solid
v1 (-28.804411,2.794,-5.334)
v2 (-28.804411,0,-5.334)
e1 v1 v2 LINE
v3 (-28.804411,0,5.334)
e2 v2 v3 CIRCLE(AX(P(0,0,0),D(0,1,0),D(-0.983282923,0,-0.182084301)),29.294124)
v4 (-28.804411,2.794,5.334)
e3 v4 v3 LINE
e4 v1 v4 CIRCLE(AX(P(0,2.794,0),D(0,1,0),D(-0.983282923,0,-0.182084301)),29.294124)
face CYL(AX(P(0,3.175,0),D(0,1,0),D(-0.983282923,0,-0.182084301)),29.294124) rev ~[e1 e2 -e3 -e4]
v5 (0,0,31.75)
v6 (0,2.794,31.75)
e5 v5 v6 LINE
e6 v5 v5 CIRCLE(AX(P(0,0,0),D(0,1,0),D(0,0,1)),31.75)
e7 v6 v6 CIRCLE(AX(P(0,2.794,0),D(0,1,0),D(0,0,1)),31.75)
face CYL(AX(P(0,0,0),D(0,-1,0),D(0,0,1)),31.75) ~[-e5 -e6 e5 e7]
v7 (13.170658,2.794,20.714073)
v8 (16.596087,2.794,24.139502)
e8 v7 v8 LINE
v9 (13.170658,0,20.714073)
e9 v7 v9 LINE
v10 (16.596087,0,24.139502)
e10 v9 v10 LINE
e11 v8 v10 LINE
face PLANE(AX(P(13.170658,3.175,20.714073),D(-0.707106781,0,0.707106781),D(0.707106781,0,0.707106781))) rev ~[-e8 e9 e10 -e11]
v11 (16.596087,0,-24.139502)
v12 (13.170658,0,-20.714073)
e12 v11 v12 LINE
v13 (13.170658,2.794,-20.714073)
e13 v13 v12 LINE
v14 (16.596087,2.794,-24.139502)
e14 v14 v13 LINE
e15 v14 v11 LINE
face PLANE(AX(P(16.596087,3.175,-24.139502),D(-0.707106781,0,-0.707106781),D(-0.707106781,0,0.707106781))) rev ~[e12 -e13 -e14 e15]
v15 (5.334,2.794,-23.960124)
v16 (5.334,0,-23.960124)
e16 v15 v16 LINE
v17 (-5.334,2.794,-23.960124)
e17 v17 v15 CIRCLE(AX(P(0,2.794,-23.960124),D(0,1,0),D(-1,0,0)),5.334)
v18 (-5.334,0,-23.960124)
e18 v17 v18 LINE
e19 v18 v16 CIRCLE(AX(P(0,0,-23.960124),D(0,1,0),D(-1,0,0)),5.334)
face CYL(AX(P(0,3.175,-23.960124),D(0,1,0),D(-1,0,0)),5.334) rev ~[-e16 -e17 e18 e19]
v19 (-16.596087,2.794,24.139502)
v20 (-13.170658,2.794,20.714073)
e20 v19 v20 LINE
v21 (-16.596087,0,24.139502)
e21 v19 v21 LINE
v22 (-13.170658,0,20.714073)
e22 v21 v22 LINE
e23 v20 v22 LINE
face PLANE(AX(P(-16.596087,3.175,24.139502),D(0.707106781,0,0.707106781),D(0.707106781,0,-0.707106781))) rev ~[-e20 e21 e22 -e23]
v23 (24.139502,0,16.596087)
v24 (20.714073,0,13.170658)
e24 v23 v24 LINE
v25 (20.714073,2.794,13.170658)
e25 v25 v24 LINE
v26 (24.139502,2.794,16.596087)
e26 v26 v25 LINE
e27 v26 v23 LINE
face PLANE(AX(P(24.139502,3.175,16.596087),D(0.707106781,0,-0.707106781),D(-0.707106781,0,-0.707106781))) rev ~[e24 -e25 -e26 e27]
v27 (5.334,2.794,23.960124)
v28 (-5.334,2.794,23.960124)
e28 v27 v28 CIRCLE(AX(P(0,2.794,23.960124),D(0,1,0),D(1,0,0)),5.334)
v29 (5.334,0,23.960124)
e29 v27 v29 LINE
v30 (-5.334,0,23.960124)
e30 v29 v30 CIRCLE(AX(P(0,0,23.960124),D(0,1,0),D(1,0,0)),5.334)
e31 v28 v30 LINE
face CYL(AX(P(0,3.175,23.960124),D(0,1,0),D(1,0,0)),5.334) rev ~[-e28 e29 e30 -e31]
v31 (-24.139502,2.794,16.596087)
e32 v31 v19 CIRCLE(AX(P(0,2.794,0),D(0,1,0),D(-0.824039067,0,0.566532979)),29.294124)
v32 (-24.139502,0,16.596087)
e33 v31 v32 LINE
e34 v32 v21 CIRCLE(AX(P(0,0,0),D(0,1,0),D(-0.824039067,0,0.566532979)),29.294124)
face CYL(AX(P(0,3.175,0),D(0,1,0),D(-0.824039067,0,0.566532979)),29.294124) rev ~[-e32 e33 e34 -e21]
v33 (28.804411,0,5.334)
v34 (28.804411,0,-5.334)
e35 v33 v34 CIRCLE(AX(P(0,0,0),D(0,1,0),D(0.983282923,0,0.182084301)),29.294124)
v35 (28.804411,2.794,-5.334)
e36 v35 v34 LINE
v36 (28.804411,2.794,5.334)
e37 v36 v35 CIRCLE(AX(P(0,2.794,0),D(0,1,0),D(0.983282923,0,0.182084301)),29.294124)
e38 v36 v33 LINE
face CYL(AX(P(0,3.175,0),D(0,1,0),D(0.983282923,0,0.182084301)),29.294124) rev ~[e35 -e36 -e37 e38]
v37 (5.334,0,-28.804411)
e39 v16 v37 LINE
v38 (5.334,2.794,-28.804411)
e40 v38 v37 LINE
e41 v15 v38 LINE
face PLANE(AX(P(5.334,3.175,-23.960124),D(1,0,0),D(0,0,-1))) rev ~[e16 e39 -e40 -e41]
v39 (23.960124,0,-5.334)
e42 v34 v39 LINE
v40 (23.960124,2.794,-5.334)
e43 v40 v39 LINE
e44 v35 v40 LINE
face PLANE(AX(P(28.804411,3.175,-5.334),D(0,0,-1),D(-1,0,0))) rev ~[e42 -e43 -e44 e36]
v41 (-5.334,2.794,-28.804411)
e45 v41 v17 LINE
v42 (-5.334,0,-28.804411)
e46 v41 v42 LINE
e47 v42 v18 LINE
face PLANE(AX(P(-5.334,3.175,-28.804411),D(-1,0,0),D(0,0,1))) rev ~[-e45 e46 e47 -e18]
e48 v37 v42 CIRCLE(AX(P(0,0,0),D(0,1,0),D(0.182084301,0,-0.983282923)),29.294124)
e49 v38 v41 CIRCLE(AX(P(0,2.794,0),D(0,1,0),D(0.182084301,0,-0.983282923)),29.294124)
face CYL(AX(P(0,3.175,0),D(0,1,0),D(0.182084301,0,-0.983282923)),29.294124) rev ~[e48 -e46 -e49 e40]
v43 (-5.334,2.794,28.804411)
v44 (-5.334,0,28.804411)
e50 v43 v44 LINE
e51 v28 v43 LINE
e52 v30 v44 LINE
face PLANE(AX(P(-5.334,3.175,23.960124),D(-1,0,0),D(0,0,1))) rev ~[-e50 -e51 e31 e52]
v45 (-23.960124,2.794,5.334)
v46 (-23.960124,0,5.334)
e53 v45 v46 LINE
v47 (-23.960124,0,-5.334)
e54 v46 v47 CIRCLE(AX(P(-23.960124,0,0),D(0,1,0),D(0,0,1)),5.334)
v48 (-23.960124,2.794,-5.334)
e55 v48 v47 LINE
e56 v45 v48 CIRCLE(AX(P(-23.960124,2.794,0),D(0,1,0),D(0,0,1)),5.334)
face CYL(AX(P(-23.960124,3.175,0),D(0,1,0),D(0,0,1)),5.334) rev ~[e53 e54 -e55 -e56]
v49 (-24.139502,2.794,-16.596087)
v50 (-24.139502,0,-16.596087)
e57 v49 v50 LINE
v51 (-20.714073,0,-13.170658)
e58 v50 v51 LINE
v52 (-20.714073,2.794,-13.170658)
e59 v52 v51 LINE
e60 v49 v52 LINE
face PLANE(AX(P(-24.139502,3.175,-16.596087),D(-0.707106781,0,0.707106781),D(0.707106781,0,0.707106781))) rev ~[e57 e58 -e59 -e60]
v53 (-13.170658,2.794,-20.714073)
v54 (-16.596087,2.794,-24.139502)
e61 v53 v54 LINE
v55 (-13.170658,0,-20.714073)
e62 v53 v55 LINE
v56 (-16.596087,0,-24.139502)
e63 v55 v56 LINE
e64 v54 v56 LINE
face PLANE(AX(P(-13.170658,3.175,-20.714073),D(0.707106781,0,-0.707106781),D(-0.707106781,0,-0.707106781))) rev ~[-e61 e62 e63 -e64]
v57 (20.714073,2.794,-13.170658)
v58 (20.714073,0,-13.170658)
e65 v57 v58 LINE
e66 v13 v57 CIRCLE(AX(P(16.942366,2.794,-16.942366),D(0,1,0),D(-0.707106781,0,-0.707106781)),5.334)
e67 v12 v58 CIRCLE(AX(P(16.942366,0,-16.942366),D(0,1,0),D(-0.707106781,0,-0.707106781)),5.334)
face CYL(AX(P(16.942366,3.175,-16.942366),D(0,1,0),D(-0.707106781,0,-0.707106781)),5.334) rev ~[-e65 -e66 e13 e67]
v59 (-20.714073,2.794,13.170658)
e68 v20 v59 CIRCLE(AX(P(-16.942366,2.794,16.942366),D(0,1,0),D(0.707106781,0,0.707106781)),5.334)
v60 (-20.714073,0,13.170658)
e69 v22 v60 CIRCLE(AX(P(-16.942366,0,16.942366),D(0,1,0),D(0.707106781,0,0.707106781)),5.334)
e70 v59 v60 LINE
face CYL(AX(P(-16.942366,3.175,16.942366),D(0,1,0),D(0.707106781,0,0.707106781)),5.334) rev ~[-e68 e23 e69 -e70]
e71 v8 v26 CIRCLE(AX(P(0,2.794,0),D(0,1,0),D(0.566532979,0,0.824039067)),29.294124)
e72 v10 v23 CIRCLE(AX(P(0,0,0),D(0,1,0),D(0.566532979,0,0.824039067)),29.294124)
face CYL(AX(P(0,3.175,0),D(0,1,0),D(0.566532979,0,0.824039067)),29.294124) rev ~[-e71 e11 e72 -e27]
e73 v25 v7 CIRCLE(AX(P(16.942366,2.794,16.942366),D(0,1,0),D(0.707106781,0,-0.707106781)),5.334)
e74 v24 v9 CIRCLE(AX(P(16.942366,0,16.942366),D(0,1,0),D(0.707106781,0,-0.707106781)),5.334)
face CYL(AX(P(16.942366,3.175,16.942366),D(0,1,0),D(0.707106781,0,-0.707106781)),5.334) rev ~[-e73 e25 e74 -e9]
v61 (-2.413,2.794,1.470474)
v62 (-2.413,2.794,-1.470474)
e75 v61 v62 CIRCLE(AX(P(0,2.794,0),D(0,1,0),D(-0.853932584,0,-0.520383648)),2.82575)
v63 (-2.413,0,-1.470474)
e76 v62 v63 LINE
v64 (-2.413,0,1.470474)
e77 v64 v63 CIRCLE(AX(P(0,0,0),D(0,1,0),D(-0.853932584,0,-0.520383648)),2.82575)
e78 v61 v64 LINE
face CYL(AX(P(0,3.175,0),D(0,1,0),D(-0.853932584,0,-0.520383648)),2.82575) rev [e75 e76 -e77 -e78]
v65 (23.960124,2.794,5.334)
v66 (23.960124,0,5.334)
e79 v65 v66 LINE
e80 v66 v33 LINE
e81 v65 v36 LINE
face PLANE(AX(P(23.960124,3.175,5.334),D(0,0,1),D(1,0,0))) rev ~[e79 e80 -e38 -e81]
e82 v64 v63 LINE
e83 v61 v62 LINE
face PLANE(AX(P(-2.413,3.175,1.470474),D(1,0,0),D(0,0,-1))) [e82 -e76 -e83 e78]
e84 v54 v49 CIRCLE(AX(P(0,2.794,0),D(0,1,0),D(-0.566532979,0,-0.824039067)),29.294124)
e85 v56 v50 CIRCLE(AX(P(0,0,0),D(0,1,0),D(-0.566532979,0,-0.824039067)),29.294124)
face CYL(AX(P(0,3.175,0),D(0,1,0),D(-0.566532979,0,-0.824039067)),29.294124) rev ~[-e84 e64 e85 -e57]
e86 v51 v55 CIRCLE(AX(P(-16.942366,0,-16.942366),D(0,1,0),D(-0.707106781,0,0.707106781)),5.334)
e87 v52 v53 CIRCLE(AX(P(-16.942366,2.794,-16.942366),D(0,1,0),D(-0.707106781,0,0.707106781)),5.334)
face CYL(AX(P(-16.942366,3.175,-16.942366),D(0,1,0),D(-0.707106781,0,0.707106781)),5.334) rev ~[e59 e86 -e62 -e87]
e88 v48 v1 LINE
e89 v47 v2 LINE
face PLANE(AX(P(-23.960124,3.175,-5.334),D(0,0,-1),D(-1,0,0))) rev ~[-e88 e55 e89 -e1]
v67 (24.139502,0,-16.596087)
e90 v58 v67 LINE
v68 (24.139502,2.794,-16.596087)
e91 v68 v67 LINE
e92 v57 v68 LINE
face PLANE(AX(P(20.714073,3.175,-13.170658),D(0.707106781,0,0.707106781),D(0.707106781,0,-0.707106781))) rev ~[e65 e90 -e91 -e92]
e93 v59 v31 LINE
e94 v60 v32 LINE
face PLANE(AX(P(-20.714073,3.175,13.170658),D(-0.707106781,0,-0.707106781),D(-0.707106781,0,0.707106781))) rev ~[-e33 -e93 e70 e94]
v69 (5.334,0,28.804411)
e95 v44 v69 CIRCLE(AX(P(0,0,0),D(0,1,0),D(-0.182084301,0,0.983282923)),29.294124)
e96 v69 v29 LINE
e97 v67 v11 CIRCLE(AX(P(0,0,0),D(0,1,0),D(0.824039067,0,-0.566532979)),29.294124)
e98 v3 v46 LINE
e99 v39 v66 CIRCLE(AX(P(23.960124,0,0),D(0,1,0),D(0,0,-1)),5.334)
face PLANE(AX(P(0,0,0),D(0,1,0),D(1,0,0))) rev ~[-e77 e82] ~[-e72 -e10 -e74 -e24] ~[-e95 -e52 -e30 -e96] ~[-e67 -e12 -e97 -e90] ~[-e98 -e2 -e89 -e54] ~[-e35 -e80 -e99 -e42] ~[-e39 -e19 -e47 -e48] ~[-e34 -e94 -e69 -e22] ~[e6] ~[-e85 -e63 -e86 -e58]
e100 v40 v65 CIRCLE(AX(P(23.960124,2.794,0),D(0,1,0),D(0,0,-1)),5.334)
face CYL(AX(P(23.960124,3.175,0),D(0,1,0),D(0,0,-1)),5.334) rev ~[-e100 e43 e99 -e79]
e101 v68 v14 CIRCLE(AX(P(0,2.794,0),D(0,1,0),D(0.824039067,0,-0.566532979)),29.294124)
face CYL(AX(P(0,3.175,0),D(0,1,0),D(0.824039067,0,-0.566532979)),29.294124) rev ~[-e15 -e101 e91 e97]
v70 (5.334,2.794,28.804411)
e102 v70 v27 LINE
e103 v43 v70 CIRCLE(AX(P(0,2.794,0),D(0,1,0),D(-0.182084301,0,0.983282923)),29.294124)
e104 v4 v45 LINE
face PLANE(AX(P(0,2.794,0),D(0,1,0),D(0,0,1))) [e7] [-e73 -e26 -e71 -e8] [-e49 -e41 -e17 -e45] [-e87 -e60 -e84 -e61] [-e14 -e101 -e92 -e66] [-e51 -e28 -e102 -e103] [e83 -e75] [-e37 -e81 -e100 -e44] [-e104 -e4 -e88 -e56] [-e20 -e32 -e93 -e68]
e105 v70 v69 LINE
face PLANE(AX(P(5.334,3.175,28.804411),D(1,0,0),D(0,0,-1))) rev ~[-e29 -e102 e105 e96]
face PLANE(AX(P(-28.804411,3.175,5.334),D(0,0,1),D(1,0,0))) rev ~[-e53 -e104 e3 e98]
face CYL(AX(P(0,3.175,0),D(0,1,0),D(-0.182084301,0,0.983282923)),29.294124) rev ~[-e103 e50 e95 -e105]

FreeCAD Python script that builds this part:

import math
import FreeCAD as App
import Part
import Sketcher

V = App.Vector
Q = App.Units.Quantity

doc = App.newDocument("Part")
body = doc.addObject("PartDesign::Body", "Body")

# Sketch on XZ plane
sketch1 = body.newObject("Sketcher::SketchObject", "Sketch")
sketch1.AttachmentSupport = (doc.getObject("XZ_Plane"), [""])
sketch1.MapMode = "FlatFace"
sketch1.addGeometry(Part.Circle(V(0, 0, 0), V(0, 0, 1), 32), False)
sketch1.addConstraint([
    Sketcher.Constraint("Coincident", 0, 3, -1, 1),
    Sketcher.Constraint("Diameter", 0, Q("2.5 in")),
])
pad1 = body.newObject("PartDesign::Pad", "Pad")
pad1.Profile = sketch1
pad1.Length = Q("0.11 in")
pad1.Reversed = True

# Sketch on XZ plane
sketch2 = body.newObject("Sketcher::SketchObject", "Sketch001")
sketch2.AttachmentSupport = (doc.getObject("XZ_Plane"), [""])
sketch2.MapMode = "FlatFace"
sketch2.AttachmentOffset = App.Placement(V(0, 0, -0.125 * 25.4), App.Rotation())
sketch2.addGeometry([
    Part.LineSegment(V(5.3, 28.8, 0), V(5.3, 24, 0)),  # 0
    Part.ArcOfCircle(Part.Circle(V(0, 24, 0), V(0, 0, 1), 5.3), math.radians(180), math.radians(360)),  # 1
    Part.LineSegment(V(-5.3, 24, 0), V(-5.3, 28.8, 0)),  # 2
    Part.ArcOfCircle(Part.Circle(V(0, 0, 0), V(0, 0, 1), 29.3), math.radians(80), math.radians(100)),  # 3
    Part.LineSegment(V(-20.7, 13.2, 0), V(-24.1, 16.6, 0)),  # 4
    Part.ArcOfCircle(Part.Circle(V(0, 0, 0), V(0, 0, 1), 29.3), math.radians(125), math.radians(145)),  # 5
    Part.LineSegment(V(-16.6, 24.1, 0), V(-13.2, 20.7, 0)),  # 6
    Part.ArcOfCircle(Part.Circle(V(-16.9, 16.9, 0), V(0, 0, 1), 5.3), math.radians(-135), math.radians(45)),  # 7
    Part.LineSegment(V(-24, -5.3, 0), V(-28.8, -5.3, 0)),  # 8
    Part.ArcOfCircle(Part.Circle(V(0, 0, 0), V(0, 0, 1), 29.3), math.radians(170), math.radians(190)),  # 9
    Part.LineSegment(V(-28.8, 5.3, 0), V(-24, 5.3, 0)),  # 10
    Part.ArcOfCircle(Part.Circle(V(-24, 0, 0), V(0, 0, 1), 5.3), math.radians(-90), math.radians(90)),  # 11
    Part.LineSegment(V(-13.2, -20.7, 0), V(-16.6, -24.1, 0)),  # 12
    Part.ArcOfCircle(Part.Circle(V(0, 0, 0), V(0, 0, 1), 29.3), math.radians(-145), math.radians(-125)),  # 13
    Part.LineSegment(V(-24.1, -16.6, 0), V(-20.7, -13.2, 0)),  # 14
    Part.ArcOfCircle(Part.Circle(V(-16.9, -16.9, 0), V(0, 0, 1), 5.3), math.radians(-45), math.radians(135)),  # 15
    Part.LineSegment(V(5.3, -24, 0), V(5.3, -28.8, 0)),  # 16
    Part.ArcOfCircle(Part.Circle(V(0, 0, 0), V(0, 0, 1), 29.3), math.radians(-100), math.radians(-80)),  # 17
    Part.LineSegment(V(-5.3, -28.8, 0), V(-5.3, -24, 0)),  # 18
    Part.ArcOfCircle(Part.Circle(V(0, -24, 0), V(0, 0, 1), 5.3), math.radians(0), math.radians(180)),  # 19
    Part.LineSegment(V(20.7, -13.2, 0), V(24.1, -16.6, 0)),  # 20
    Part.ArcOfCircle(Part.Circle(V(0, 0, 0), V(0, 0, 1), 29.3), math.radians(-55), math.radians(-35)),  # 21
    Part.LineSegment(V(16.6, -24.1, 0), V(13.2, -20.7, 0)),  # 22
    Part.ArcOfCircle(Part.Circle(V(16.9, -16.9, 0), V(0, 0, 1), 5.3), math.radians(45), math.radians(225)),  # 23
    Part.LineSegment(V(24, 5.3, 0), V(28.8, 5.3, 0)),  # 24
    Part.ArcOfCircle(Part.Circle(V(0, 0, 0), V(0, 0, 1), 29.3), math.radians(-10), math.radians(10)),  # 25
    Part.LineSegment(V(28.8, -5.3, 0), V(24, -5.3, 0)),  # 26
    Part.ArcOfCircle(Part.Circle(V(24, 0, 0), V(0, 0, 1), 5.3), math.radians(90), math.radians(270)),  # 27
    Part.LineSegment(V(13.2, 20.7, 0), V(16.6, 24.1, 0)),  # 28
    Part.ArcOfCircle(Part.Circle(V(0, 0, 0), V(0, 0, 1), 29.3), math.radians(35), math.radians(55)),  # 29
    Part.LineSegment(V(24.1, 16.6, 0), V(20.7, 13.2, 0)),  # 30
    Part.ArcOfCircle(Part.Circle(V(16.9, 16.9, 0), V(0, 0, 1), 5.3), math.radians(135), math.radians(315)),  # 31
], False)
sketch2.addConstraint([
    Sketcher.Constraint("Tangent", 0, 2, 1, 2),
    Sketcher.Constraint("Tangent", 1, 1, 2, 1),
    Sketcher.Constraint("Coincident", 2, 2, 3, 2),
    Sketcher.Constraint("Coincident", 3, 1, 0, 1),
    Sketcher.Constraint("Coincident", 4, 2, 5, 2),
    Sketcher.Constraint("Coincident", 5, 1, 6, 1),
    Sketcher.Constraint("Tangent", 6, 2, 7, 2),
    Sketcher.Constraint("Tangent", 7, 1, 4, 1),
    Sketcher.Constraint("Coincident", 8, 2, 9, 2),
    Sketcher.Constraint("Coincident", 9, 1, 10, 1),
    Sketcher.Constraint("Tangent", 10, 2, 11, 2),
    Sketcher.Constraint("Tangent", 11, 1, 8, 1),
    Sketcher.Constraint("Coincident", 12, 2, 13, 2),
    Sketcher.Constraint("Coincident", 13, 1, 14, 1),
    Sketcher.Constraint("Tangent", 14, 2, 15, 2),
    Sketcher.Constraint("Tangent", 15, 1, 12, 1),
    Sketcher.Constraint("Coincident", 16, 2, 17, 2),
    Sketcher.Constraint("Coincident", 17, 1, 18, 1),
    Sketcher.Constraint("Tangent", 18, 2, 19, 2),
    Sketcher.Constraint("Tangent", 19, 1, 16, 1),
    Sketcher.Constraint("Coincident", 20, 2, 21, 2),
    Sketcher.Constraint("Coincident", 21, 1, 22, 1),
    Sketcher.Constraint("Tangent", 22, 2, 23, 2),
    Sketcher.Constraint("Tangent", 23, 1, 20, 1),
    Sketcher.Constraint("Coincident", 24, 2, 25, 2),
    Sketcher.Constraint("Coincident", 25, 1, 26, 1),
    Sketcher.Constraint("Tangent", 26, 2, 27, 2),
    Sketcher.Constraint("Tangent", 27, 1, 24, 1),
    Sketcher.Constraint("Coincident", 28, 2, 29, 2),
    Sketcher.Constraint("Coincident", 29, 1, 30, 1),
    Sketcher.Constraint("Tangent", 30, 2, 31, 2),
    Sketcher.Constraint("Tangent", 31, 1, 28, 1),
    Sketcher.Constraint("Vertical", 0),
    Sketcher.Constraint("Vertical", 2),
    Sketcher.Constraint("Horizontal", 8),
    Sketcher.Constraint("Horizontal", 10),
    Sketcher.Constraint("Vertical", 16),
    Sketcher.Constraint("Vertical", 18),
    Sketcher.Constraint("Horizontal", 24),
    Sketcher.Constraint("Horizontal", 26),
    Sketcher.Constraint("Coincident", 3, 3, -1, 1),
    Sketcher.Constraint("Coincident", 5, 3, -1, 1),
    Sketcher.Constraint("Coincident", 9, 3, -1, 1),
    Sketcher.Constraint("Coincident", 13, 3, -1, 1),
    Sketcher.Constraint("Coincident", 17, 3, -1, 1),
    Sketcher.Constraint("Coincident", 21, 3, -1, 1),
    Sketcher.Constraint("Coincident", 25, 3, -1, 1),
    Sketcher.Constraint("Coincident", 29, 3, -1, 1),
    Sketcher.Constraint("Equal", 3, 5),
    Sketcher.Constraint("Equal", 1, 7),
    Sketcher.Constraint("Equal", 5, 9),
    Sketcher.Constraint("Equal", 7, 11),
    Sketcher.Constraint("Equal", 9, 13),
    Sketcher.Constraint("Equal", 11, 15),
    Sketcher.Constraint("Equal", 13, 17),
    Sketcher.Constraint("Equal", 15, 19),
    Sketcher.Constraint("Equal", 17, 21),
    Sketcher.Constraint("Equal", 19, 23),
    Sketcher.Constraint("Equal", 21, 25),
    Sketcher.Constraint("Equal", 23, 27),
    Sketcher.Constraint("Equal", 25, 29),
    Sketcher.Constraint("Equal", 27, 31),
    Sketcher.Constraint("Symmetric", 1, 3, 19, 3, -1, 1),
    Sketcher.Constraint("Symmetric", 7, 3, 23, 3, -1, 1),
    Sketcher.Constraint("Symmetric", 11, 3, 27, 3, -1, 1),
    Sketcher.Constraint("Symmetric", 15, 3, 31, 3, -1, 1),
    Sketcher.Constraint("Symmetric", 15, 3, 23, 3, -2),
    Sketcher.Constraint("PointOnObject", 1, 3, -2),
    Sketcher.Constraint("PointOnObject", 11, 3, -1),
    Sketcher.Constraint("Parallel", 4, 6),
    Sketcher.Constraint("Perpendicular", 6, 12),
    Sketcher.Constraint("Parallel", 12, 14),
    Sketcher.Constraint("Perpendicular", 14, 20),
    Sketcher.Constraint("Parallel", 20, 22),
    Sketcher.Constraint("Perpendicular", 22, 28),
    Sketcher.Constraint("Parallel", 28, 30),
    Sketcher.Constraint("Horizontal", 13, 1, 20, 2),
    Sketcher.Constraint("Equal", 26, 0),
    Sketcher.Constraint("Equal", 4, 6),
    Sketcher.Constraint("Radius", 1, Q("0.21 in")),
    Sketcher.Constraint("Radius", 3, Q("29.294124 mm")),
    Sketcher.Constraint("DistanceX", 8, 2, 8, 1, Q("4.844288 mm")),
    Sketcher.Constraint("DistanceX", 6, 2, -1, 1, Q("13.170658 mm")),
])
pocket1 = body.newObject("PartDesign::Pocket", "Pocket")
pocket1.Profile = sketch2
pocket1.Type = "ThroughAll"
pocket1.Reversed = True

# Sketch on XZ plane
sketch3 = body.newObject("Sketcher::SketchObject", "Sketch002")
sketch3.AttachmentSupport = (doc.getObject("XZ_Plane"), [""])
sketch3.MapMode = "FlatFace"
sketch3.AttachmentOffset = App.Placement(V(0, 0, -0.125 * 25.4), App.Rotation())
sketch3.addGeometry([
    Part.LineSegment(V(-2.4, -1.5, 0), V(-2.4, 1.5, 0)),
    Part.ArcOfCircle(Part.Circle(V(0, 0, 0), V(0, 0, 1), 2.8), math.radians(-149), math.radians(149)),
], False)
sketch3.addConstraint([
    Sketcher.Constraint("Coincident", 0, 1, 1, 1),
    Sketcher.Constraint("Coincident", 1, 2, 0, 2),
    Sketcher.Constraint("Vertical", 0),
    Sketcher.Constraint("Coincident", 1, 3, -1, 1),
    Sketcher.Constraint("DistanceX", 0, 1, -1, 1, Q("0.095 in")),
    Sketcher.Constraint("Radius", 1, Q("2.82575 mm")),
])
pocket2 = body.newObject("PartDesign::Pocket", "Pocket001")
pocket2.Profile = sketch3
pocket2.Type = "ThroughAll"
pocket2.Reversed = True

doc.recompute()
